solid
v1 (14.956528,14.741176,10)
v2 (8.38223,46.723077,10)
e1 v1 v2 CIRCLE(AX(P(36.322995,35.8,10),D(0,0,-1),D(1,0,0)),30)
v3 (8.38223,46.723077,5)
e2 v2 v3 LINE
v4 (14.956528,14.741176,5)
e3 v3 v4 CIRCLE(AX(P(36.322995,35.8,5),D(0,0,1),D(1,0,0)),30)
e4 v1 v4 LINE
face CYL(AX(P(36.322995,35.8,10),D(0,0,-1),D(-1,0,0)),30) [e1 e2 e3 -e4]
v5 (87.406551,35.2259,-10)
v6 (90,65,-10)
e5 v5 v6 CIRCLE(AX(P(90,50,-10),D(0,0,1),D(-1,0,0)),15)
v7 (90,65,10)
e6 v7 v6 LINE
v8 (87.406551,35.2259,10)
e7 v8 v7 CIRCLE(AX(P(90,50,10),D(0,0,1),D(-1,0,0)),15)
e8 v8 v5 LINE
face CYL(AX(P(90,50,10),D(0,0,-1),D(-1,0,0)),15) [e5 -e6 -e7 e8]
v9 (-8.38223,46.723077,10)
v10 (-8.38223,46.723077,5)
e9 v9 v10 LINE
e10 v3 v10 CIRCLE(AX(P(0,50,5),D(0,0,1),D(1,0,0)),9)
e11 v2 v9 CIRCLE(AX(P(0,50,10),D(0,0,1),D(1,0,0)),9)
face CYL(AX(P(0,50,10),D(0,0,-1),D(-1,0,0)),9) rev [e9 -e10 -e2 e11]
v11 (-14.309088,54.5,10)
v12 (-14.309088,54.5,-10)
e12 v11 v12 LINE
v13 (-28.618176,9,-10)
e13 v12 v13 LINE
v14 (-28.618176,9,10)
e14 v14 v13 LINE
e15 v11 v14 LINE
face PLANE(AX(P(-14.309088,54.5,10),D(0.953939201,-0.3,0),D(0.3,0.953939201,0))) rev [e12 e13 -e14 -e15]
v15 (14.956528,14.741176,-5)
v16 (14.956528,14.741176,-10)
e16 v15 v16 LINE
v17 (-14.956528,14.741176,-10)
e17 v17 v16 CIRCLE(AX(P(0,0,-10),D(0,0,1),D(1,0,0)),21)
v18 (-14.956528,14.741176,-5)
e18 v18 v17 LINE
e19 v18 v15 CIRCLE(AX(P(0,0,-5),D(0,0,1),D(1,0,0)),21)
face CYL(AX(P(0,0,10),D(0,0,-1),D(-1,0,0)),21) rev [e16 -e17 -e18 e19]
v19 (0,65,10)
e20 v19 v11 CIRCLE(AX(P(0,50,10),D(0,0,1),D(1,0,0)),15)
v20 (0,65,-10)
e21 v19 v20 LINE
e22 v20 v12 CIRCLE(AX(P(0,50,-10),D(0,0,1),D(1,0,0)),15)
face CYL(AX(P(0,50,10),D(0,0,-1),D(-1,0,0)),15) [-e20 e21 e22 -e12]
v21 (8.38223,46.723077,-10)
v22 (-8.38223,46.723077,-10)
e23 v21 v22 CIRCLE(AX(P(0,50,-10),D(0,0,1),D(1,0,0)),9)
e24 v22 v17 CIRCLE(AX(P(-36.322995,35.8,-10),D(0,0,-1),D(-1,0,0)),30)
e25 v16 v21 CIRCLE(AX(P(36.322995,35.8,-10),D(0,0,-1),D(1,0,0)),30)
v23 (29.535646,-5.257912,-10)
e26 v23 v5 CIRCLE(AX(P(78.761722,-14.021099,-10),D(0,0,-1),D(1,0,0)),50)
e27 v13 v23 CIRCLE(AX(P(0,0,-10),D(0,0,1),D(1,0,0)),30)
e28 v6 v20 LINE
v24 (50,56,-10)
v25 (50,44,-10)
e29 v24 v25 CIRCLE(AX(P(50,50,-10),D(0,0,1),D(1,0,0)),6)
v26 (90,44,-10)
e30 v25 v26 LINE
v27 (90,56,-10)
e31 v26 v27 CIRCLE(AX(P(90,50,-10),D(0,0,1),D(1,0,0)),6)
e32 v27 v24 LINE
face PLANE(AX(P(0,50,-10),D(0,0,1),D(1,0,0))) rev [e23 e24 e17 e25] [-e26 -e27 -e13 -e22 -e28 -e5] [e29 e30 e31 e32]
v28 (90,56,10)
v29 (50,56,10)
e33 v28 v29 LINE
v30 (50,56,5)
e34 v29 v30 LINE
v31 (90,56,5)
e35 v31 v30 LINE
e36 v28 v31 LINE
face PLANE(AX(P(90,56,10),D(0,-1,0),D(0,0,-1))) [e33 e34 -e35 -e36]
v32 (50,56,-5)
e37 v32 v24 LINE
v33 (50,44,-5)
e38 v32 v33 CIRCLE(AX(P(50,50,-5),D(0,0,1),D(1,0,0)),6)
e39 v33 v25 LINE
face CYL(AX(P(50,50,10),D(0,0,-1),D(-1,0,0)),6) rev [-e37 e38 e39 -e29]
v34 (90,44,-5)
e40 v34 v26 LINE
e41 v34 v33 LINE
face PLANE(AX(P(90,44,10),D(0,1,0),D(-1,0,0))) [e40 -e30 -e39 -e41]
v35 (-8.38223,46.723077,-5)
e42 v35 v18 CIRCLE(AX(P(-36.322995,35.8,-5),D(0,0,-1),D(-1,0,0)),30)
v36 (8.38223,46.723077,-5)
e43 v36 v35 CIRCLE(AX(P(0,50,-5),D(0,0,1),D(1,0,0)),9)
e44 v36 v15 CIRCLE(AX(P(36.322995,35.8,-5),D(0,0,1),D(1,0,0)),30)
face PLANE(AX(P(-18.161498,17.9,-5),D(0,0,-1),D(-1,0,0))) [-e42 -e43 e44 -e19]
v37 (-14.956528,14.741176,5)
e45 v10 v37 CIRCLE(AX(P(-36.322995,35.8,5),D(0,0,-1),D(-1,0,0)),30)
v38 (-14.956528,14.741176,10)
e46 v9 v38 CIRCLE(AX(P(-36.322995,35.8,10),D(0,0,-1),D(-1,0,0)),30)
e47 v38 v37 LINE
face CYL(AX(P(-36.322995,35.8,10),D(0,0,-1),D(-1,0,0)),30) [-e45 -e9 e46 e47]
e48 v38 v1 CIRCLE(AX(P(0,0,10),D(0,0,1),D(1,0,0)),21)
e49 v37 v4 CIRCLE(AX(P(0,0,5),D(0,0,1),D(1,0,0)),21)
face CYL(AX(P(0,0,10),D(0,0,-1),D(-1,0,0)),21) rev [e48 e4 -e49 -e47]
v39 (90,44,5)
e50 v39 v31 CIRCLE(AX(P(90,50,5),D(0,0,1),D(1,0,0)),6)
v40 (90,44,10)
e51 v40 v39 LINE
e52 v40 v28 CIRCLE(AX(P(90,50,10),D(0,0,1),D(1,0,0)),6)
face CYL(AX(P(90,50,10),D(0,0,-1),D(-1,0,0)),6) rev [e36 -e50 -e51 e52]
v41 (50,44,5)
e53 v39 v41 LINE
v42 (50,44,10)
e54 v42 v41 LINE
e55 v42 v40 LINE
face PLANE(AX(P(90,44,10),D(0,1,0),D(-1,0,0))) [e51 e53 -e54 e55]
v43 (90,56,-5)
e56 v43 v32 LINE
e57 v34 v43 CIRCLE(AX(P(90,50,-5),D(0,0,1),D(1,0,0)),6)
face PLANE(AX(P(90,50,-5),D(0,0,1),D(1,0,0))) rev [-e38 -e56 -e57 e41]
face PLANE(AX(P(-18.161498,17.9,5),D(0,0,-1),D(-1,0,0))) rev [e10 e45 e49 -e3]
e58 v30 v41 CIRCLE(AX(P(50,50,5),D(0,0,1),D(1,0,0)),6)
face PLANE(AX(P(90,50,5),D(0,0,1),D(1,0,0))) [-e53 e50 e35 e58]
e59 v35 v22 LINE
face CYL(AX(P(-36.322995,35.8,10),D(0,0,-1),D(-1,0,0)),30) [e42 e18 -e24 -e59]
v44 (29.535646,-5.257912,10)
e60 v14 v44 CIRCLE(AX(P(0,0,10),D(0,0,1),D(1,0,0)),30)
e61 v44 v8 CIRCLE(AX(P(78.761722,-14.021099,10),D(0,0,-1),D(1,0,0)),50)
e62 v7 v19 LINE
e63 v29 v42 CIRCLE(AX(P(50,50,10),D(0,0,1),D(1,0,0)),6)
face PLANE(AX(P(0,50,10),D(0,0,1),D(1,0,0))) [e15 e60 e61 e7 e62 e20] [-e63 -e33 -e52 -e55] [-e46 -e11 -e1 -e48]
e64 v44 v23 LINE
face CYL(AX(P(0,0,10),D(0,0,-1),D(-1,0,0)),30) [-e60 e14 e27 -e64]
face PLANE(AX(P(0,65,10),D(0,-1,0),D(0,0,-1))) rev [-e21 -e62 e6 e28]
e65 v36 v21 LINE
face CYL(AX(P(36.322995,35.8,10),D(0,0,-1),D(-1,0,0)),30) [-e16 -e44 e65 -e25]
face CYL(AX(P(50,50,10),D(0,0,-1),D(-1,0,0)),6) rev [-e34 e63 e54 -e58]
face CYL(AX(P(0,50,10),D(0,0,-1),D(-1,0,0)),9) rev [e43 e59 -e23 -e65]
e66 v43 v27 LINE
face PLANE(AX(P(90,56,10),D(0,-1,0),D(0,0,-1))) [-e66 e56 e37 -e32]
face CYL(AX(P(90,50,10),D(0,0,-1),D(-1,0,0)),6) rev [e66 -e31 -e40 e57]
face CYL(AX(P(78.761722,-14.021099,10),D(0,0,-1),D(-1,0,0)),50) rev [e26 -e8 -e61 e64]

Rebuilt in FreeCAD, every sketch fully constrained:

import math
import FreeCAD as App
import Part
import Sketcher
Q = App.Units.Quantity

doc = App.newDocument("Part")
body = doc.addObject("PartDesign::Body", "Body")

# Sketch on XY plane
sketch1 = body.newObject("Sketcher::SketchObject", "Sketch")
sketch1.AttachmentSupport = (doc.getObject("XY_Plane"), [""])
sketch1.MapMode = "FlatFace"
sketch1.addGeometry([
    Part.LineSegment(App.Vector(50, 44, 0), App.Vector(90, 44, 0)),
    Part.ArcOfCircle(Part.Circle(App.Vector(90, 50, 0), App.Vector(0, 0, 1), 6), math.radians(-90), math.radians(90)),
    Part.LineSegment(App.Vector(90, 56, 0), App.Vector(50, 56, 0)),
    Part.ArcOfCircle(Part.Circle(App.Vector(50, 50, 0), App.Vector(0, 0, 1), 6), math.radians(90), math.radians(270)),
], False)
sketch1.addConstraint([
    Sketcher.Constraint("Tangent", 0, 2, 1, 1),
    Sketcher.Constraint("Tangent", 1, 2, 2, 1),
    Sketcher.Constraint("Tangent", 2, 2, 3, 1),
    Sketcher.Constraint("Tangent", 3, 2, 0, 1),
    Sketcher.Constraint("Horizontal", 0),
    Sketcher.Constraint("Horizontal", 2),
    Sketcher.Constraint("Radius", 1, Q("6 mm")),
    Sketcher.Constraint("DistanceX", 0, 1, 0, 2, Q("40 mm")),
    Sketcher.Constraint("DistanceX", -1, 1, 1, 3, Q("90 mm")),
    Sketcher.Constraint("DistanceY", -1, 1, 1, 3, Q("50 mm")),
])
pad1 = body.newObject("PartDesign::Pad", "Pad")
pad1.Profile = sketch1
pad1.Length = 10
pad1.Midplane = True
body2 = doc.addObject("PartDesign::Body", "Body001")

# Sketch on XY plane
sketch2 = body2.newObject("Sketcher::SketchObject", "Sketch001")
sketch2.AttachmentSupport = (doc.getObject("XY_Plane001"), [""])
sketch2.MapMode = "FlatFace"
sketch2.addGeometry([
    Part.ArcOfCircle(Part.Circle(App.Vector(0, 0, 0), App.Vector(0, 0, 1), 21), math.radians(135.41547), math.radians(404.58453)),
    Part.ArcOfCircle(Part.Circle(App.Vector(36.322995, 35.8, 0), App.Vector(0, 0, 1), 30), math.radians(158.647637), math.radians(224.58453)),
    Part.ArcOfCircle(Part.Circle(App.Vector(0, 50, 0), App.Vector(0, 0, 1), 9), math.radians(-21.352363), math.radians(201.352363)),
    Part.ArcOfCircle(Part.Circle(App.Vector(-36.322995, 35.8, 0), App.Vector(0, 0, 1), 30), math.radians(-44.58453), math.radians(21.352363)),
], False)
sketch2.addConstraint([
    Sketcher.Constraint("Tangent", 0, 2, 1, 2),
    Sketcher.Constraint("Tangent", 1, 1, 2, 1),
    Sketcher.Constraint("Tangent", 2, 2, 3, 2),
    Sketcher.Constraint("Tangent", 3, 1, 0, 1),
    Sketcher.Constraint("Coincident", 0, 3, -1, 1),
    Sketcher.Constraint("Equal", 1, 3),
    Sketcher.Constraint("PointOnObject", 2, 3, -2),
    Sketcher.Constraint("Radius", 0, Q("21 mm")),
    Sketcher.Constraint("Radius", 1, Q("30 mm")),
    Sketcher.Constraint("Radius", 2, Q("9 mm")),
    Sketcher.Constraint("DistanceY", -1, 1, 2, 3, Q("50 mm")),
])
pad2 = body2.newObject("PartDesign::Pad", "Pad001")
pad2.Profile = sketch2
pad2.Length = 10
pad2.Midplane = True
body.AllowCompound = True
doc.recompute()

boolean = body.newObject("PartDesign::Boolean", "Boolean")
boolean.Type = "Fuse"
boolean.addObjects([body2])

# Sketch on XY plane
sketch3 = body.newObject("Sketcher::SketchObject", "Sketch002")
sketch3.AttachmentSupport = (doc.getObject("XY_Plane"), [""])
sketch3.MapMode = "FlatFace"
sketch3.AttachmentOffset = App.Placement(App.Vector(0, 0, -10), App.Rotation())
sketch3.addGeometry([
    Part.LineSegment(App.Vector(90, 65, 0), App.Vector(0, 65, 0)),  # 0
    Part.ArcOfCircle(Part.Circle(App.Vector(0, 50, 0), App.Vector(0, 0, 1), 15), math.radians(90), math.radians(162.542397)),  # 1
    Part.LineSegment(App.Vector(-14.309088, 54.5, 0), App.Vector(-28.618176, 9, 0)),  # 2
    Part.ArcOfCircle(Part.Circle(App.Vector(0, 0, 0), App.Vector(0, 0, 1), 30), math.radians(162.542397), math.radians(349.905994)),  # 3
    Part.ArcOfCircle(Part.Circle(App.Vector(78.761722, -14.021099, 0), App.Vector(0, 0, 1), 50), math.radians(80.043724), math.radians(169.905994)),  # 4
    Part.ArcOfCircle(Part.Circle(App.Vector(90, 50, 0), App.Vector(0, 0, 1), 15), math.radians(-99.956276), math.radians(90)),  # 5
    Part.LineSegment(App.Vector(90, 44, 0), App.Vector(50, 44, 0)),  # 6
    Part.ArcOfCircle(Part.Circle(App.Vector(50, 50, 0), App.Vector(0, 0, 1), 6), math.radians(90), math.radians(270)),  # 7
    Part.LineSegment(App.Vector(50, 56, 0), App.Vector(90, 56, 0)),  # 8
    Part.ArcOfCircle(Part.Circle(App.Vector(90, 50, 0), App.Vector(0, 0, 1), 6), math.radians(-90), math.radians(90)),  # 9
    Part.ArcOfCircle(Part.Circle(App.Vector(-36.322995, 35.8, 0), App.Vector(0, 0, 1), 30), math.radians(-44.58453), math.radians(21.352363)),  # 10
    Part.ArcOfCircle(Part.Circle(App.Vector(0, 50, 0), App.Vector(0, 0, 1), 9), math.radians(-21.352363), math.radians(201.352363)),  # 11
    Part.ArcOfCircle(Part.Circle(App.Vector(36.322995, 35.8, 0), App.Vector(0, 0, 1), 30), math.radians(158.647637), math.radians(224.58453)),  # 12
    Part.ArcOfCircle(Part.Circle(App.Vector(0, 0, 0), App.Vector(0, 0, 1), 21), math.radians(135.41547), math.radians(404.58453)),  # 13
], False)
sketch3.addConstraint([
    Sketcher.Constraint("Tangent", 0, 2, 1, 1),
    Sketcher.Constraint("Tangent", 1, 2, 2, 1),
    Sketcher.Constraint("Tangent", 2, 2, 3, 1),
    Sketcher.Constraint("Tangent", 3, 2, 4, 2),
    Sketcher.Constraint("Tangent", 4, 1, 5, 1),
    Sketcher.Constraint("Tangent", 5, 2, 0, 1),
    Sketcher.Constraint("Tangent", 6, 2, 7, 2),
    Sketcher.Constraint("Tangent", 7, 1, 8, 1),
    Sketcher.Constraint("Tangent", 8, 2, 9, 2),
    Sketcher.Constraint("Tangent", 9, 1, 6, 1),
    Sketcher.Constraint("Tangent", 10, 2, 11, 2),
    Sketcher.Constraint("Tangent", 11, 1, 12, 1),
    Sketcher.Constraint("Tangent", 12, 2, 13, 2),
    Sketcher.Constraint("Tangent", 13, 1, 10, 1),
    Sketcher.Constraint("Horizontal", 0),
    Sketcher.Constraint("Horizontal", 6),
    Sketcher.Constraint("Horizontal", 8),
    Sketcher.Constraint("Coincident", 3, 3, -1, 1),
    Sketcher.Constraint("Coincident", 13, 3, -1, 1),
    Sketcher.Constraint("Coincident", 9, 3, 5, 3),
    Sketcher.Constraint("Coincident", 11, 3, 1, 3),
    Sketcher.Constraint("Equal", 1, 5),
    Sketcher.Constraint("Equal", 3, 10),
    Sketcher.Constraint("Equal", 10, 12),
    Sketcher.Constraint("PointOnObject", 1, 3, -2),
    Sketcher.Constraint("Radius", 1, Q("15 mm")),
    Sketcher.Constraint("Radius", 3, Q("30 mm")),
    Sketcher.Constraint("Radius", 4, Q("50 mm")),
    Sketcher.Constraint("Radius", 7, Q("6 mm")),
    Sketcher.Constraint("Radius", 11, Q("9 mm")),
    Sketcher.Constraint("Radius", 13, Q("21 mm")),
    Sketcher.Constraint("DistanceX", 0, 2, 0, 1, Q("90 mm")),
    Sketcher.Constraint("DistanceX", 6, 2, 6, 1, Q("40 mm")),
    Sketcher.Constraint("DistanceY", -1, 1, 1, 3, Q("50 mm")),
])
pad3 = body.newObject("PartDesign::Pad", "Pad002")
pad3.Profile = sketch3
pad3.Length = 20

doc.recompute()
